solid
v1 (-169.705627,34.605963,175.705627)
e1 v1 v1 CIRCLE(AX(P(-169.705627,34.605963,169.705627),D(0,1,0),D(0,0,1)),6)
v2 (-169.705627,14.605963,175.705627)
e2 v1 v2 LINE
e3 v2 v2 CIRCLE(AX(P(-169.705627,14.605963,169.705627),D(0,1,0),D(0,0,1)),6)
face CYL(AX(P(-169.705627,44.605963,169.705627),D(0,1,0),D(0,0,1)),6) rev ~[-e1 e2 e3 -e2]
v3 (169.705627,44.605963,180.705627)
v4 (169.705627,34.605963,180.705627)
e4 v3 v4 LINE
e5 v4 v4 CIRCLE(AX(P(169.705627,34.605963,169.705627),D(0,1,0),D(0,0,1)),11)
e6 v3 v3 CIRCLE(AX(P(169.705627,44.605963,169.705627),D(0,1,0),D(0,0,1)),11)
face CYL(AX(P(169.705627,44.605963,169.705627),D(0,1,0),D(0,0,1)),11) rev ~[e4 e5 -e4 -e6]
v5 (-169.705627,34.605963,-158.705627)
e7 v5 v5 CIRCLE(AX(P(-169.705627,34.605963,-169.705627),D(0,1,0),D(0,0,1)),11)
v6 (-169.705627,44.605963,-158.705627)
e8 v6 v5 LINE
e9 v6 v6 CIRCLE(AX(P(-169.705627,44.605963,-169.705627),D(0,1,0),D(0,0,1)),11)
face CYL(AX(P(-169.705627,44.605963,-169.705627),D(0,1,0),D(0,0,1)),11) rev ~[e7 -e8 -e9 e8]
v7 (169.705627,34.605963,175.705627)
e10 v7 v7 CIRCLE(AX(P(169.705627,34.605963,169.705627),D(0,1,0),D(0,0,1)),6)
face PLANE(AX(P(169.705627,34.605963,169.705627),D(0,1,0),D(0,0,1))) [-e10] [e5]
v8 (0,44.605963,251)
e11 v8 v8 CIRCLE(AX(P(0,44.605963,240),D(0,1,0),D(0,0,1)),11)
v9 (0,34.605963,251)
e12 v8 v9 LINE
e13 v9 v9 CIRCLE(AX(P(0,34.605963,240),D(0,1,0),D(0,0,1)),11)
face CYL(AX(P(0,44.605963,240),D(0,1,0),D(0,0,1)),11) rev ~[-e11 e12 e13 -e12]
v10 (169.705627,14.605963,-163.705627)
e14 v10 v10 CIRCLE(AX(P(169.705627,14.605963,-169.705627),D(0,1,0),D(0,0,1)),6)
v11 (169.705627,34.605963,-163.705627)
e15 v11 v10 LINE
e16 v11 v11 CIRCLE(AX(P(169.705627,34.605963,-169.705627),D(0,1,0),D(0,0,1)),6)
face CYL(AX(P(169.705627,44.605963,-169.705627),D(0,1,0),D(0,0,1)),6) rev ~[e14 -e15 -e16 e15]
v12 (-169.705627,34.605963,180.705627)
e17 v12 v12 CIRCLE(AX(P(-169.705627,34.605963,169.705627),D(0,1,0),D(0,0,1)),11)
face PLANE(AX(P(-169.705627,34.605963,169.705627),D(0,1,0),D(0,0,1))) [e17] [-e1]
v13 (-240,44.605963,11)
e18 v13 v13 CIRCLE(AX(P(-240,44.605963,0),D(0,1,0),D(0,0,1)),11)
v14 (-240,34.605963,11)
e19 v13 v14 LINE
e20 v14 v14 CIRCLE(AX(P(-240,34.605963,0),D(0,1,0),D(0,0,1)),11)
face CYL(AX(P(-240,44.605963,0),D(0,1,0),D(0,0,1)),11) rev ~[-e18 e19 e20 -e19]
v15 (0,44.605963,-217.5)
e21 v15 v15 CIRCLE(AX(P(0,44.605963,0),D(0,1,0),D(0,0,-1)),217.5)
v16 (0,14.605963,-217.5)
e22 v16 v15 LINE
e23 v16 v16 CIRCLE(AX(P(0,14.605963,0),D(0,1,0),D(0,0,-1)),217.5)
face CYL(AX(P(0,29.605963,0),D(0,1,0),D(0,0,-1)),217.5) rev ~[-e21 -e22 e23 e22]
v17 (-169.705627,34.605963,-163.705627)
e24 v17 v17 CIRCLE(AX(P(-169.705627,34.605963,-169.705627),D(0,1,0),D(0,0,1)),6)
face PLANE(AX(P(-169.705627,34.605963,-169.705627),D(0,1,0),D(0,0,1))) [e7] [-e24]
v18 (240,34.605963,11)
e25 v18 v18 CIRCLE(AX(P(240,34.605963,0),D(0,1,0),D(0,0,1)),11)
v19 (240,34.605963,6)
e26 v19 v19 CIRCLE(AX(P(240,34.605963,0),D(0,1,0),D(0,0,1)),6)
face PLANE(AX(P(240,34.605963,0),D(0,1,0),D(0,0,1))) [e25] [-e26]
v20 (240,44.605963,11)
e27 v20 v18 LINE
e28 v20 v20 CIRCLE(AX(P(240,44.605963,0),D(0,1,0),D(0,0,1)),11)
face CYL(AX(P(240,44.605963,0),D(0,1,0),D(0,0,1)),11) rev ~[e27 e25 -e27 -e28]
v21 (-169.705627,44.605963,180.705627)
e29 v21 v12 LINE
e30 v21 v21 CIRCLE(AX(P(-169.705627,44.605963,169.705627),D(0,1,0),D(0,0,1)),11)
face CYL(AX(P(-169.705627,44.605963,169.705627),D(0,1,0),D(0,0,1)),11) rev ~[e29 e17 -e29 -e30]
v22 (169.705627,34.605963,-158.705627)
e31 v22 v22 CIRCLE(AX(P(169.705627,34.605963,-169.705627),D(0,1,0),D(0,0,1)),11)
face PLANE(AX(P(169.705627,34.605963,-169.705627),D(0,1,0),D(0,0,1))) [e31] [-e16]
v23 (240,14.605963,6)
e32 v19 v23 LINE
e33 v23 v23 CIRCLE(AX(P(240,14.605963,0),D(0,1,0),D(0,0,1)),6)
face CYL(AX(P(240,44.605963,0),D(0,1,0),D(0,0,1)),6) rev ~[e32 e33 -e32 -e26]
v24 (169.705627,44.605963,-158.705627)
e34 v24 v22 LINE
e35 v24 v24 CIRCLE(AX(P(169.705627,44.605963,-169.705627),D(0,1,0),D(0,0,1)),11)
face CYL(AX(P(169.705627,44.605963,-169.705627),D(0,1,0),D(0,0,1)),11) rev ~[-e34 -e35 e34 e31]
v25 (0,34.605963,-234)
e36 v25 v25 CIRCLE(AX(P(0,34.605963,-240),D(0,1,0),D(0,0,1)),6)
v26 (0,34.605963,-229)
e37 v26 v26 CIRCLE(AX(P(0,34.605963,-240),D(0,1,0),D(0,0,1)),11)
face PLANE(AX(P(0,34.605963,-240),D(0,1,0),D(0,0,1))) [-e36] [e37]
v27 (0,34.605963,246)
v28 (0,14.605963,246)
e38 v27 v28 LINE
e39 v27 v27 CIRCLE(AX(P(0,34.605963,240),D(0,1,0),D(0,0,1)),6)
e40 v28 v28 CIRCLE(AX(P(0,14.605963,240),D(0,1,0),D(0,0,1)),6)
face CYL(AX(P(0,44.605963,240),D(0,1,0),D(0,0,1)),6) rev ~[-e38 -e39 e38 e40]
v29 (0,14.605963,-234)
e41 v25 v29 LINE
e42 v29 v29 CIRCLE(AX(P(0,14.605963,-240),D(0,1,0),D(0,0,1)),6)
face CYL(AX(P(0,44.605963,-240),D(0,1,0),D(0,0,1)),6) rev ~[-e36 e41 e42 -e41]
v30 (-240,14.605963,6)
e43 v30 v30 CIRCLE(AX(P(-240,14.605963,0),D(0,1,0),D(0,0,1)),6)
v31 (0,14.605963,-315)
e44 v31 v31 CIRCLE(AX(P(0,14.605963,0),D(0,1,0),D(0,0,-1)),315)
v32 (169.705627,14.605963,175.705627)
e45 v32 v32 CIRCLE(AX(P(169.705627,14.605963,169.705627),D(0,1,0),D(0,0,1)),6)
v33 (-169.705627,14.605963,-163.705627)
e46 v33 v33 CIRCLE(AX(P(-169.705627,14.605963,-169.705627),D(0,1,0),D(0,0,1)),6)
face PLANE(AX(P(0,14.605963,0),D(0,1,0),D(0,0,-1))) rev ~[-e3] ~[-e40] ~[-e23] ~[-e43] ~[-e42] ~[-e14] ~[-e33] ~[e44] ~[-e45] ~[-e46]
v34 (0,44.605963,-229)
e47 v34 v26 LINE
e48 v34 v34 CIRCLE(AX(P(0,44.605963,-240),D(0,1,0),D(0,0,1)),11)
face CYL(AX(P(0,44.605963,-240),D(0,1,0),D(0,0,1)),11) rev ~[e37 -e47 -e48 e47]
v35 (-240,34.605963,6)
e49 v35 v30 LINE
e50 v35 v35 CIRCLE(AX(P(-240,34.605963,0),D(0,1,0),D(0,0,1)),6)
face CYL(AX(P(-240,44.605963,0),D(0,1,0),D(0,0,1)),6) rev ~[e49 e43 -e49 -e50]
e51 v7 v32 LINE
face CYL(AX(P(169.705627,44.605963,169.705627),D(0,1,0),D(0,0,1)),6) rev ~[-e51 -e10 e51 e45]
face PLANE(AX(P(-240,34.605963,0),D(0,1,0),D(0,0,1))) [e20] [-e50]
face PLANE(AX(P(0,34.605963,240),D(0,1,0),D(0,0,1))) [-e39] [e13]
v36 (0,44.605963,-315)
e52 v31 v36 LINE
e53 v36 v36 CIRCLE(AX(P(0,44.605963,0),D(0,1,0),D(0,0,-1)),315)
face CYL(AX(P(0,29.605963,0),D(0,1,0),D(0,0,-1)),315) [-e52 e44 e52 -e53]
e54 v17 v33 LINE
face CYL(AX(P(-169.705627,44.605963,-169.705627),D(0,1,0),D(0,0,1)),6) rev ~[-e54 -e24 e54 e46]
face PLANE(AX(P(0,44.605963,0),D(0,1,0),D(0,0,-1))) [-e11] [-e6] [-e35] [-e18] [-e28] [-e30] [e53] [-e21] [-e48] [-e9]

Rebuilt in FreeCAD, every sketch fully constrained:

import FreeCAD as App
import Part
import Sketcher

V = App.Vector

doc = App.newDocument("Part")
body = doc.addObject("PartDesign::Body", "Body")

# Sketch on YZ plane
sketch1 = body.newObject("Sketcher::SketchObject", "Sketch")
sketch1.AttachmentSupport = (doc.getObject("YZ_Plane"), [""])
sketch1.MapMode = "FlatFace"
sketch1.addGeometry([
    Part.LineSegment(V(45, 315, 0), V(15, 315, 0)),
    Part.LineSegment(V(15, 315, 0), V(15, 218, 0)),
    Part.LineSegment(V(15, 218, 0), V(45, 218, 0)),
    Part.LineSegment(V(45, 218, 0), V(45, 315, 0)),
], False)
sketch1.addConstraint([
    Sketcher.Constraint("Coincident", 0, 2, 1, 1),
    Sketcher.Constraint("Coincident", 1, 2, 2, 1),
    Sketcher.Constraint("Coincident", 2, 2, 3, 1),
    Sketcher.Constraint("Coincident", 3, 2, 0, 1),
    Sketcher.Constraint("Horizontal", 0),
    Sketcher.Constraint("Vertical", 1),
    Sketcher.Constraint("Horizontal", 2),
    Sketcher.Constraint("Vertical", 3),
    Sketcher.Constraint("DistanceX", 0, 2, 0, 1, 30.0),
    Sketcher.Constraint("DistanceY", 1, 2, 1, 1, 97.5),
    Sketcher.Constraint("DistanceY", -1, 1, 0, 2, 315.0),
    Sketcher.Constraint("DistanceX", -1, 1, 0, 2, 14.605963),
])
revolution = body.newObject("PartDesign::Revolution", "Revolution")
revolution.Profile = sketch1
revolution.ReferenceAxis = (sketch1, ["H_Axis"])
revolution.Angle = 360

# Sketch on XZ plane
sketch2 = body.newObject("Sketcher::SketchObject", "Sketch001")
sketch2.AttachmentSupport = (doc.getObject("XZ_Plane"), [""])
sketch2.MapMode = "FlatFace"
sketch2.AttachmentOffset = App.Placement(V(0, 0, -44.605963), App.Rotation())
sketch2.addGeometry([
    Part.Circle(V(0, -240, 0), V(0, 0, 1), 11),  # 0
    Part.Circle(V(170, -170, 0), V(0, 0, 1), 11),  # 1
    Part.Circle(V(240, 0, 0), V(0, 0, 1), 11),  # 2
    Part.Circle(V(170, 170, 0), V(0, 0, 1), 11),  # 3
    Part.Circle(V(0, 240, 0), V(0, 0, 1), 11),  # 4
    Part.Circle(V(-170, 170, 0), V(0, 0, 1), 11),  # 5
    Part.Circle(V(-240, 0, 0), V(0, 0, 1), 11),  # 6
    Part.Circle(V(-170, -170, 0), V(0, 0, 1), 11),  # 7
], False)
sketch2.addConstraint([
    Sketcher.Constraint("Equal", 0, 1),
    Sketcher.Constraint("Equal", 1, 2),
    Sketcher.Constraint("Equal", 2, 3),
    Sketcher.Constraint("Equal", 3, 4),
    Sketcher.Constraint("Equal", 4, 5),
    Sketcher.Constraint("Equal", 5, 6),
    Sketcher.Constraint("Equal", 6, 7),
    Sketcher.Constraint("Symmetric", 0, 3, 4, 3, -1, 1),
    Sketcher.Constraint("Symmetric", 1, 3, 5, 3, -1, 1),
    Sketcher.Constraint("Symmetric", 2, 3, 6, 3, -1, 1),
    Sketcher.Constraint("Symmetric", 3, 3, 7, 3, -1, 1),
    Sketcher.Constraint("Symmetric", 3, 3, 5, 3, -2),
    Sketcher.Constraint("PointOnObject", 0, 3, -2),
    Sketcher.Constraint("PointOnObject", 2, 3, -1),
    Sketcher.Constraint("Diameter", 0, 22.0),
    Sketcher.Constraint("DistanceY", 0, 3, -1, 1, 240.0),
    Sketcher.Constraint("DistanceX", -1, 1, 2, 3, 240.0),
    Sketcher.Constraint("DistanceX", -1, 1, 1, 3, 169.705627),
    Sketcher.Constraint("DistanceY", 1, 3, -1, 1, 169.705627),
])
pocket1 = body.newObject("PartDesign::Pocket", "Pocket")
pocket1.Profile = sketch2
pocket1.Length = 10
pocket1.Reversed = True

# Sketch on XZ plane
sketch3 = body.newObject("Sketcher::SketchObject", "Sketch002")
sketch3.AttachmentSupport = (doc.getObject("XZ_Plane"), [""])
sketch3.MapMode = "FlatFace"
sketch3.AttachmentOffset = App.Placement(V(0, 0, -44.605963), App.Rotation())
sketch3.addGeometry([
    Part.Circle(V(0, -240, 0), V(0, 0, 1), 6),  # 0
    Part.Circle(V(170, -170, 0), V(0, 0, 1), 6),  # 1
    Part.Circle(V(240, 0, 0), V(0, 0, 1), 6),  # 2
    Part.Circle(V(170, 170, 0), V(0, 0, 1), 6),  # 3
    Part.Circle(V(0, 240, 0), V(0, 0, 1), 6),  # 4
    Part.Circle(V(-170, 170, 0), V(0, 0, 1), 6),  # 5
    Part.Circle(V(-240, 0, 0), V(0, 0, 1), 6),  # 6
    Part.Circle(V(-170, -170, 0), V(0, 0, 1), 6),  # 7
], False)
sketch3.addConstraint([
    Sketcher.Constraint("Equal", 0, 1),
    Sketcher.Constraint("Equal", 1, 2),
    Sketcher.Constraint("Equal", 2, 3),
    Sketcher.Constraint("Equal", 3, 4),
    Sketcher.Constraint("Equal", 4, 5),
    Sketcher.Constraint("Equal", 5, 6),
    Sketcher.Constraint("Equal", 6, 7),
    Sketcher.Constraint("Symmetric", 0, 3, 4, 3, -1, 1),
    Sketcher.Constraint("Symmetric", 1, 3, 5, 3, -1, 1),
    Sketcher.Constraint("Symmetric", 2, 3, 6, 3, -1, 1),
    Sketcher.Constraint("Symmetric", 3, 3, 7, 3, -1, 1),
    Sketcher.Constraint("Symmetric", 3, 3, 5, 3, -2),
    Sketcher.Constraint("PointOnObject", 0, 3, -2),
    Sketcher.Constraint("PointOnObject", 2, 3, -1),
    Sketcher.Constraint("Diameter", 0, 12.0),
    Sketcher.Constraint("DistanceY", 0, 3, -1, 1, 240.0),
    Sketcher.Constraint("DistanceX", -1, 1, 2, 3, 240.0),
    Sketcher.Constraint("DistanceX", -1, 1, 1, 3, 169.705627),
    Sketcher.Constraint("DistanceY", 1, 3, -1, 1, 169.705627),
])
pocket2 = body.newObject("PartDesign::Pocket", "Pocket001")
pocket2.Profile = sketch3
pocket2.Type = "ThroughAll"
pocket2.Reversed = True

doc.recompute()
